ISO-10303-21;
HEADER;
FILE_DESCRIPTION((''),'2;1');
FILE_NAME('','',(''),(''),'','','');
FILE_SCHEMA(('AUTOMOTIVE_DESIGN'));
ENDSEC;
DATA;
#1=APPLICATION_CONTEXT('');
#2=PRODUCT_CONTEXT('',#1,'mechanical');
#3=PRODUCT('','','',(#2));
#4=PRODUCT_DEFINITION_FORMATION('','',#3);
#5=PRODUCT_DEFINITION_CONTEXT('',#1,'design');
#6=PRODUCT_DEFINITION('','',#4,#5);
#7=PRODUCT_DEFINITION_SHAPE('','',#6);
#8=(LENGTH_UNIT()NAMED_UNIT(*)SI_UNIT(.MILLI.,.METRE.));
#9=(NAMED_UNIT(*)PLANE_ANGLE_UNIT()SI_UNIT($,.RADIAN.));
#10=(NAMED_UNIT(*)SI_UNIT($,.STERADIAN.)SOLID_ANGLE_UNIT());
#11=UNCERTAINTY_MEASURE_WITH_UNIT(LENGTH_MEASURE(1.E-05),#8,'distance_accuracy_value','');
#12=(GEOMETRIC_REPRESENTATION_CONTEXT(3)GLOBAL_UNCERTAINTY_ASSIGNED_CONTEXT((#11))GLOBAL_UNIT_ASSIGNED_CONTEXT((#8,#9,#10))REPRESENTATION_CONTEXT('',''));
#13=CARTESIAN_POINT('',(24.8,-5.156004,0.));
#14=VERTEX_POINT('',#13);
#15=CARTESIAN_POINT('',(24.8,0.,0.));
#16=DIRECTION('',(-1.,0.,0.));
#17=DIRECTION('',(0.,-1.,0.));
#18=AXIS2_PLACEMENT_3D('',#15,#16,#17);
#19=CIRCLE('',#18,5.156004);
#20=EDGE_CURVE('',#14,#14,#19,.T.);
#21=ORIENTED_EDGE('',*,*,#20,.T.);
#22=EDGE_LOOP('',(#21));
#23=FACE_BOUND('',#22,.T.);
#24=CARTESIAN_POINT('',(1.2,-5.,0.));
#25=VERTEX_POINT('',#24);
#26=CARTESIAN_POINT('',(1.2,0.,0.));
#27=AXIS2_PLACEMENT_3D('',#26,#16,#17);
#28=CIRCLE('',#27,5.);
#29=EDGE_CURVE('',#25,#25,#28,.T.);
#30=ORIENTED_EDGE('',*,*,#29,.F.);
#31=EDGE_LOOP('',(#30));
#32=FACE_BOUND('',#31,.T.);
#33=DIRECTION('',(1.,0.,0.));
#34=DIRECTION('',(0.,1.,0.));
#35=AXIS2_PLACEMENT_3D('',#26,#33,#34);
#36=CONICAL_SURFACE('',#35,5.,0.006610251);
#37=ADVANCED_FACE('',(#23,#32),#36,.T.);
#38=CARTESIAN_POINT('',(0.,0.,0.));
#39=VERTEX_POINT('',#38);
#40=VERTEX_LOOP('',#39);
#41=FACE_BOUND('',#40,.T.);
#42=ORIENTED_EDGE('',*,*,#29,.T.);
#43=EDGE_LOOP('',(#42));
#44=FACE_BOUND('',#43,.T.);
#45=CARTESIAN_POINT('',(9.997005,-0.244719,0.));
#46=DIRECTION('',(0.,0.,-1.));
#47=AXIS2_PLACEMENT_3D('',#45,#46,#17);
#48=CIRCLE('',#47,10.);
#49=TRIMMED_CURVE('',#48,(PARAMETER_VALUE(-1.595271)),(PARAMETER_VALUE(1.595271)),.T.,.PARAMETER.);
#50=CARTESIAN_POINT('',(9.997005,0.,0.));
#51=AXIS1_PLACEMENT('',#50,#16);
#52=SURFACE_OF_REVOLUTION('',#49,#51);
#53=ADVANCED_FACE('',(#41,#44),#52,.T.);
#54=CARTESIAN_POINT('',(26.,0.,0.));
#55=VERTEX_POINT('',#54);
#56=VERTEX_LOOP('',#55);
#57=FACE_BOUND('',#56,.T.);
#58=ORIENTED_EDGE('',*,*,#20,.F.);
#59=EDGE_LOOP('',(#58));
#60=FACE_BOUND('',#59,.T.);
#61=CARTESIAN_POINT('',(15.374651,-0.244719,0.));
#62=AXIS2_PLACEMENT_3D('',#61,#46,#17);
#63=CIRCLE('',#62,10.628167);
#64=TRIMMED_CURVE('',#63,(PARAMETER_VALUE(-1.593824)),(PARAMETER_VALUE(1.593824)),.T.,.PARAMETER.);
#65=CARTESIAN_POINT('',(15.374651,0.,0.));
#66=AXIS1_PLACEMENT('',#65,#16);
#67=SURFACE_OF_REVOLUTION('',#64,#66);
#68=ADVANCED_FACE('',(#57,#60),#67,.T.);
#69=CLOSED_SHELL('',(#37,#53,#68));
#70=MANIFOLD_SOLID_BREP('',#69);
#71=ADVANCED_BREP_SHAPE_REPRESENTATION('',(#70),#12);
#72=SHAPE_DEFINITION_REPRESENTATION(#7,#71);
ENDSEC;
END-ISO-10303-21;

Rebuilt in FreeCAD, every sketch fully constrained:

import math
import FreeCAD as App
import Part
import Sketcher

doc = App.newDocument("Part")
body = doc.addObject("PartDesign::Body", "Body")

# Sketch on XY plane
sketch1 = body.newObject("Sketcher::SketchObject", "Sketch")
sketch1.AttachmentSupport = (doc.getObject("XY_Plane"), [""])
sketch1.MapMode = "FlatFace"
sketch1.addGeometry([
    Part.LineSegment(App.Vector(26, 0, 0), App.Vector(0, 0, 0)),
    Part.ArcOfCircle(Part.Circle(App.Vector(10, 0, 0), App.Vector(0, 0, 1), 10), math.radians(179), math.radians(208)),
    Part.LineSegment(App.Vector(1, -5, 0), App.Vector(25, -5, 0)),
    Part.ArcOfCircle(Part.Circle(App.Vector(15, 0, 0), App.Vector(0, 0, 1), 11), math.radians(-28), math.radians(1)),
], False)
sketch1.addConstraint([
    Sketcher.Constraint("Coincident", 0, 2, 1, 1),
    Sketcher.Constraint("Coincident", 1, 2, 2, 1),
    Sketcher.Constraint("Coincident", 2, 2, 3, 1),
    Sketcher.Constraint("Coincident", 3, 2, 0, 1),
    Sketcher.Constraint("Horizontal", 0),
    Sketcher.Constraint("Coincident", 0, 2, -1, 1),
    Sketcher.Constraint("Horizontal", 1, 3, 3, 3),
    Sketcher.Constraint("Radius", 1, 10.0),
    Sketcher.Constraint("DistanceX", 0, 2, 0, 1, 26.0),
    Sketcher.Constraint("DistanceY", 1, 2, -1, 1, 5.0),
    Sketcher.Constraint("DistanceX", -1, 1, 1, 2, 1.2),
    Sketcher.Constraint("DistanceX", -1, 1, 2, 2, 24.8),
    Sketcher.Constraint("Radius", 3, 10.628167),
])
revolution = body.newObject("PartDesign::Revolution", "Revolution")
revolution.Profile = sketch1
revolution.ReferenceAxis = (sketch1, ["H_Axis"])
revolution.Angle = 360

doc.recompute()
